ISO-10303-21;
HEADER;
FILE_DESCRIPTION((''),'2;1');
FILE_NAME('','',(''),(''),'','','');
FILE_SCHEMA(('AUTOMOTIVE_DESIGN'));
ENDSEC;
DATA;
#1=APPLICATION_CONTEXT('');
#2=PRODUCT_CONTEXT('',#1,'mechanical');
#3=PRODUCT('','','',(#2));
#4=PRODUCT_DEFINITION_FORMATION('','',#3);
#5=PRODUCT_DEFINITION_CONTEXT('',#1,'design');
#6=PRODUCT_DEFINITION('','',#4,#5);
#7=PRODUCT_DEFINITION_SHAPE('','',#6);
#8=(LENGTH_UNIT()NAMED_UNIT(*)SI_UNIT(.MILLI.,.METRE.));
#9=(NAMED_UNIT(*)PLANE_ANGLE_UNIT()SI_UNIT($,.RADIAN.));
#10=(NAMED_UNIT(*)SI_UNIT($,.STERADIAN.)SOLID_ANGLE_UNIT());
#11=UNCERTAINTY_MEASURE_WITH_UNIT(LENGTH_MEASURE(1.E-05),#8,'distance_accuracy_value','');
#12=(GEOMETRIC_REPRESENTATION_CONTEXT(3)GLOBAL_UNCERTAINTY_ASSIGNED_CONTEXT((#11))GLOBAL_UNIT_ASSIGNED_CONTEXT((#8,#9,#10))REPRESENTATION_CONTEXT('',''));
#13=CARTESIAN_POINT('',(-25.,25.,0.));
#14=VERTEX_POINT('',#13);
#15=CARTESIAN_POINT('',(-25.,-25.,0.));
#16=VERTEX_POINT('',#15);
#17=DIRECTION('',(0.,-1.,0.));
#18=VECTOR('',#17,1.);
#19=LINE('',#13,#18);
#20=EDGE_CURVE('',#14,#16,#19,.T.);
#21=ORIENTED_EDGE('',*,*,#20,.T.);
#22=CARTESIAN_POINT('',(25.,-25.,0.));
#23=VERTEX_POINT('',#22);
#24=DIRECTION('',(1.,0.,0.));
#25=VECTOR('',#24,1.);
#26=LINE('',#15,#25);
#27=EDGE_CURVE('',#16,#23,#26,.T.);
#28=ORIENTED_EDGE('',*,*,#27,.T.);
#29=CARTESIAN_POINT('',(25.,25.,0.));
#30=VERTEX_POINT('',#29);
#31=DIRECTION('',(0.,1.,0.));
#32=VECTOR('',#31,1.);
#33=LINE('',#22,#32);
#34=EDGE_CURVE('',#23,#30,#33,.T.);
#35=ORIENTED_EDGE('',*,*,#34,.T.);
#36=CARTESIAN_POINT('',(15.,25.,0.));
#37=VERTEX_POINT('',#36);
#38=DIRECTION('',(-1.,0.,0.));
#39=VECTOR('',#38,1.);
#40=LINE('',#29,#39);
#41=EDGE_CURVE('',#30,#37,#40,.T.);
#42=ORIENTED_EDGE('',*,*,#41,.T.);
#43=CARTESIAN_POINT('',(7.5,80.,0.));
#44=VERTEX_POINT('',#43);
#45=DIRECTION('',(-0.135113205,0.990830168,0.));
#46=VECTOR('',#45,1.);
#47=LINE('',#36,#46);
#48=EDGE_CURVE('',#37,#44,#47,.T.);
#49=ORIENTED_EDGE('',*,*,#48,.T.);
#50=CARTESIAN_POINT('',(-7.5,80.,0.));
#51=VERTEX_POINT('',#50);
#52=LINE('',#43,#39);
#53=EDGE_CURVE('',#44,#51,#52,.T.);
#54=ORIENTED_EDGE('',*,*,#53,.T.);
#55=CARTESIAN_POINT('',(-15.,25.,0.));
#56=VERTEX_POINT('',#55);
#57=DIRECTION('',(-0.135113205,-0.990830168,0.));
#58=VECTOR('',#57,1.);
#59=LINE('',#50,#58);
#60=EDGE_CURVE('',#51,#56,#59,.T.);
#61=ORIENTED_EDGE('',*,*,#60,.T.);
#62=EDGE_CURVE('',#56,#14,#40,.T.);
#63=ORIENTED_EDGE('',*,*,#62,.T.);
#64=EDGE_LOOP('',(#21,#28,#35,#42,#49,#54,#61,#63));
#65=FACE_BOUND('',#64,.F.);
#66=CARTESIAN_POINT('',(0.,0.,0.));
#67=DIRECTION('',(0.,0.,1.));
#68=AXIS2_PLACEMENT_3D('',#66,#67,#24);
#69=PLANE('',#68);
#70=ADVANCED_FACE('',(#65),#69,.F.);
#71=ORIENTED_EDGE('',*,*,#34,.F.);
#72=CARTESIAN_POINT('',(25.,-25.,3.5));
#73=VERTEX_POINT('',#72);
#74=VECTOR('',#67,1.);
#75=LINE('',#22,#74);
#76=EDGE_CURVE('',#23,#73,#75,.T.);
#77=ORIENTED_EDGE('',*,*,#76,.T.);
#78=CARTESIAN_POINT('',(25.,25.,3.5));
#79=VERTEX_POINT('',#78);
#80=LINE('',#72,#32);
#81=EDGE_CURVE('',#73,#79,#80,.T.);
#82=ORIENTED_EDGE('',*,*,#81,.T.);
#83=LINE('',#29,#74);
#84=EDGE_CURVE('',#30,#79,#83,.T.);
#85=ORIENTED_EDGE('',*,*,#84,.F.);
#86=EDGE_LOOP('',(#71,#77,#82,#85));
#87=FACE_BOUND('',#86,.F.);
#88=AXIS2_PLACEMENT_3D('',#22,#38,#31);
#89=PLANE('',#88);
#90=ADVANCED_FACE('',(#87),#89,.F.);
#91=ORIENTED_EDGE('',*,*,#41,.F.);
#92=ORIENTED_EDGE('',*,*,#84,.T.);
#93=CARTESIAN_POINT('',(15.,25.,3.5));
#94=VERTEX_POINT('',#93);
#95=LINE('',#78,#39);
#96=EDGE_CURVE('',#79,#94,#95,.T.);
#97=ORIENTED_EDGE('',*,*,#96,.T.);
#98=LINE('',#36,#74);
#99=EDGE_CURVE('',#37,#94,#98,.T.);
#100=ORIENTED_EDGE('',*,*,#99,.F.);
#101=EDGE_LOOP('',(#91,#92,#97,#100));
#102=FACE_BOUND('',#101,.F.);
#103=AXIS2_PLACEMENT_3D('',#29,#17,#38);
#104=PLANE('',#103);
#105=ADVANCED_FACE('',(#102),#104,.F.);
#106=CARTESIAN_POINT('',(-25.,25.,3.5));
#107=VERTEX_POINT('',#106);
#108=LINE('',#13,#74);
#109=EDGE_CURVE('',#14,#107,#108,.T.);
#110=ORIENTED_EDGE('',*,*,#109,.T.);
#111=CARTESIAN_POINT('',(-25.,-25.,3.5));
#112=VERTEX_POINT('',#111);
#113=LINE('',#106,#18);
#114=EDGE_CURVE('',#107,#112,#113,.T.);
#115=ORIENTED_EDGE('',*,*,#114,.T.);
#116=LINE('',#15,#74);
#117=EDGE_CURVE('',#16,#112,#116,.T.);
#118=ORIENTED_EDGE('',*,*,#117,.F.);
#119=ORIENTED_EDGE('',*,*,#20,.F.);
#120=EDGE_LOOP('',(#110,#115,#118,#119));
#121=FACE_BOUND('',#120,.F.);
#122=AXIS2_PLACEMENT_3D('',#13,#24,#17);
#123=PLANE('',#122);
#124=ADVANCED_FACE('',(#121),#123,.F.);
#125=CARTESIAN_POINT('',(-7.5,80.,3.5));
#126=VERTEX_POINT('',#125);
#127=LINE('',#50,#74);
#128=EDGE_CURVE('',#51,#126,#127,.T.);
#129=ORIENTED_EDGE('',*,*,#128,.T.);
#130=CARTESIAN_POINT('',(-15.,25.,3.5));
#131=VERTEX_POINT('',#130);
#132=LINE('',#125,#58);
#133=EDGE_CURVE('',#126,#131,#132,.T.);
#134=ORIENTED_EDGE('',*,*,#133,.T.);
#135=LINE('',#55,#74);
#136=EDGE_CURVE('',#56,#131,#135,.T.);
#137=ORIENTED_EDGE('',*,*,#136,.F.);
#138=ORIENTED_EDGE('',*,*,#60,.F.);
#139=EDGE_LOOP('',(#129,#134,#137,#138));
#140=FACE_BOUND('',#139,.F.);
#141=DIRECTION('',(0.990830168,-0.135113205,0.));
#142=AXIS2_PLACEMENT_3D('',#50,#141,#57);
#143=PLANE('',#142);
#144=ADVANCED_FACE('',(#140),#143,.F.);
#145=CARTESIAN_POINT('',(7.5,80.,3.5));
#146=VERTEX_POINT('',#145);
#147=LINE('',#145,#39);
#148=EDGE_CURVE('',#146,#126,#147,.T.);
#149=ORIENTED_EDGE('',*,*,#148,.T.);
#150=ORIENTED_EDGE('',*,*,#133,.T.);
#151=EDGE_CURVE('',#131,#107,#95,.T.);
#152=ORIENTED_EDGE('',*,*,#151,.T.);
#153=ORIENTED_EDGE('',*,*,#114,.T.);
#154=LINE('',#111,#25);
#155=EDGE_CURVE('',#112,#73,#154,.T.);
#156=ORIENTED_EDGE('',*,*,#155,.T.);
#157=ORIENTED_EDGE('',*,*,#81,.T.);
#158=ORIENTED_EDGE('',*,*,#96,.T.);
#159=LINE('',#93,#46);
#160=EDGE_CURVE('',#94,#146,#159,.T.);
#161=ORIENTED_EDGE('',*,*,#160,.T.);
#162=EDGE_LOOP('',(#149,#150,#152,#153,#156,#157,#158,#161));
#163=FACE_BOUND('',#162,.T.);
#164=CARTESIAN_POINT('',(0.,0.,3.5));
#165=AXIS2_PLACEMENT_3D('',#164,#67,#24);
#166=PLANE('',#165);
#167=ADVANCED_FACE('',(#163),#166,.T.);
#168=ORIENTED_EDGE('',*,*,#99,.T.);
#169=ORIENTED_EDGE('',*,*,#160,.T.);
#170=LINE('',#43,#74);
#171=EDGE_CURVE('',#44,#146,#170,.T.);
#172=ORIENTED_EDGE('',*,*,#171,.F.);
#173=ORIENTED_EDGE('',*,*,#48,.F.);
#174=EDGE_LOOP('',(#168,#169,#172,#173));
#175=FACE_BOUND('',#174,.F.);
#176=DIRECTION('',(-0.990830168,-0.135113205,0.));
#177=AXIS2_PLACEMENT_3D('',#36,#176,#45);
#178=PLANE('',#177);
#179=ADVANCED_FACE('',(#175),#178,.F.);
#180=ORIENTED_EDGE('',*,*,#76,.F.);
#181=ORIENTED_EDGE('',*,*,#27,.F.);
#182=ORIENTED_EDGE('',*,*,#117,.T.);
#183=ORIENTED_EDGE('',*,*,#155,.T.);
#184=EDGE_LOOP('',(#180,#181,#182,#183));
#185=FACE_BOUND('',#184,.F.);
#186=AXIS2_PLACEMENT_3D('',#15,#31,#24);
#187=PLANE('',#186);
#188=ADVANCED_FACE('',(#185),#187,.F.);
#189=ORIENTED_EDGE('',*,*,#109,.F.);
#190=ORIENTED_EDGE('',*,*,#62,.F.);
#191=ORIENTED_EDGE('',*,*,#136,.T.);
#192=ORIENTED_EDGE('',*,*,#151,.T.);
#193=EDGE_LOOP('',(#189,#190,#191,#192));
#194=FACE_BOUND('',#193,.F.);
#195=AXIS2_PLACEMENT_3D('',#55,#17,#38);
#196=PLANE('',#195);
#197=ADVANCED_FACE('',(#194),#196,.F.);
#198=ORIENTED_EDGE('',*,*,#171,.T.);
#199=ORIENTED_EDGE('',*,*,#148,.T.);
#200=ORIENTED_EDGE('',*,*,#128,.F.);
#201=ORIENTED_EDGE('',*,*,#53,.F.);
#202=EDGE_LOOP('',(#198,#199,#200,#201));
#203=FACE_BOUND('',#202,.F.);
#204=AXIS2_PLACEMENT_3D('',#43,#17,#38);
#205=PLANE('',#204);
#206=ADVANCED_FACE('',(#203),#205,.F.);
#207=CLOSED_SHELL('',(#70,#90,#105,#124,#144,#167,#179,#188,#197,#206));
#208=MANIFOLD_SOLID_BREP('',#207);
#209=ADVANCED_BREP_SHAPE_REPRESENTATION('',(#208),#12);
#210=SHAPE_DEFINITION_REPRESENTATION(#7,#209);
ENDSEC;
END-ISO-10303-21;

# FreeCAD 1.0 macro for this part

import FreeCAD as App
import Part
import Sketcher
from FreeCAD import Vector
Q = App.Units.Quantity


def add_polygon(sketch, points):
    """Adds a closed chain of lines whose ends are joined by coincident constraints."""
    first, n = sketch.GeometryCount, len(points)
    for a, b in zip(points, points[1:] + points[:1]):
        sketch.addGeometry(Part.LineSegment(App.Vector(*a, 0), App.Vector(*b, 0)), False)
    for i in range(n):
        sketch.addConstraint(Sketcher.Constraint("Coincident", first + i, 2, first + (i + 1) % n, 1))

doc = App.newDocument("Part")
body = doc.addObject("PartDesign::Body", "Body")

# Sketch on XY plane
sketch1 = body.newObject("Sketcher::SketchObject", "Sketch")
sketch1.AttachmentSupport = (doc.getObject("XY_Plane"), [""])
sketch1.MapMode = "FlatFace"
add_polygon(sketch1, [(-25, -25), (25, -25), (25, 25), (15, 25), (7.5, 80), (-7.5, 80), (-15, 25), (-25, 25)])  # lines 0-7
sketch1.addConstraint(Sketcher.Constraint("Horizontal", 0))
sketch1.addConstraint(Sketcher.Constraint("Vertical", 1))
sketch1.addConstraint(Sketcher.Constraint("Horizontal", 2))
sketch1.addConstraint(Sketcher.Constraint("Horizontal", 4))
sketch1.addConstraint(Sketcher.Constraint("Horizontal", 6))
sketch1.addConstraint(Sketcher.Constraint("Vertical", 7))
sketch1.addConstraint(Sketcher.Constraint("Symmetric", 0, 2, 6, 2, -1, 1))
sketch1.addConstraint(Sketcher.Constraint("Symmetric", 2, 2, 5, 2, -2))
sketch1.addConstraint(Sketcher.Constraint("Equal", 0, 1))
sketch1.addConstraint(Sketcher.Constraint("Equal", 3, 5))
sketch1.addConstraint(Sketcher.Constraint("DistanceX", 0, 1, 0, 2, Q("50 mm")))
sketch1.addConstraint(Sketcher.Constraint("DistanceX", 2, 2, 2, 1, Q("10 mm")))
sketch1.addConstraint(Sketcher.Constraint("DistanceX", 4, 2, 4, 1, Q("15 mm")))
sketch1.addConstraint(Sketcher.Constraint("DistanceY", -1, 1, 3, 2, Q("80 mm")))
pad1 = body.newObject("PartDesign::Pad", "Pad")
pad1.Profile = sketch1
pad1.Length = 3.5

doc.recompute()
